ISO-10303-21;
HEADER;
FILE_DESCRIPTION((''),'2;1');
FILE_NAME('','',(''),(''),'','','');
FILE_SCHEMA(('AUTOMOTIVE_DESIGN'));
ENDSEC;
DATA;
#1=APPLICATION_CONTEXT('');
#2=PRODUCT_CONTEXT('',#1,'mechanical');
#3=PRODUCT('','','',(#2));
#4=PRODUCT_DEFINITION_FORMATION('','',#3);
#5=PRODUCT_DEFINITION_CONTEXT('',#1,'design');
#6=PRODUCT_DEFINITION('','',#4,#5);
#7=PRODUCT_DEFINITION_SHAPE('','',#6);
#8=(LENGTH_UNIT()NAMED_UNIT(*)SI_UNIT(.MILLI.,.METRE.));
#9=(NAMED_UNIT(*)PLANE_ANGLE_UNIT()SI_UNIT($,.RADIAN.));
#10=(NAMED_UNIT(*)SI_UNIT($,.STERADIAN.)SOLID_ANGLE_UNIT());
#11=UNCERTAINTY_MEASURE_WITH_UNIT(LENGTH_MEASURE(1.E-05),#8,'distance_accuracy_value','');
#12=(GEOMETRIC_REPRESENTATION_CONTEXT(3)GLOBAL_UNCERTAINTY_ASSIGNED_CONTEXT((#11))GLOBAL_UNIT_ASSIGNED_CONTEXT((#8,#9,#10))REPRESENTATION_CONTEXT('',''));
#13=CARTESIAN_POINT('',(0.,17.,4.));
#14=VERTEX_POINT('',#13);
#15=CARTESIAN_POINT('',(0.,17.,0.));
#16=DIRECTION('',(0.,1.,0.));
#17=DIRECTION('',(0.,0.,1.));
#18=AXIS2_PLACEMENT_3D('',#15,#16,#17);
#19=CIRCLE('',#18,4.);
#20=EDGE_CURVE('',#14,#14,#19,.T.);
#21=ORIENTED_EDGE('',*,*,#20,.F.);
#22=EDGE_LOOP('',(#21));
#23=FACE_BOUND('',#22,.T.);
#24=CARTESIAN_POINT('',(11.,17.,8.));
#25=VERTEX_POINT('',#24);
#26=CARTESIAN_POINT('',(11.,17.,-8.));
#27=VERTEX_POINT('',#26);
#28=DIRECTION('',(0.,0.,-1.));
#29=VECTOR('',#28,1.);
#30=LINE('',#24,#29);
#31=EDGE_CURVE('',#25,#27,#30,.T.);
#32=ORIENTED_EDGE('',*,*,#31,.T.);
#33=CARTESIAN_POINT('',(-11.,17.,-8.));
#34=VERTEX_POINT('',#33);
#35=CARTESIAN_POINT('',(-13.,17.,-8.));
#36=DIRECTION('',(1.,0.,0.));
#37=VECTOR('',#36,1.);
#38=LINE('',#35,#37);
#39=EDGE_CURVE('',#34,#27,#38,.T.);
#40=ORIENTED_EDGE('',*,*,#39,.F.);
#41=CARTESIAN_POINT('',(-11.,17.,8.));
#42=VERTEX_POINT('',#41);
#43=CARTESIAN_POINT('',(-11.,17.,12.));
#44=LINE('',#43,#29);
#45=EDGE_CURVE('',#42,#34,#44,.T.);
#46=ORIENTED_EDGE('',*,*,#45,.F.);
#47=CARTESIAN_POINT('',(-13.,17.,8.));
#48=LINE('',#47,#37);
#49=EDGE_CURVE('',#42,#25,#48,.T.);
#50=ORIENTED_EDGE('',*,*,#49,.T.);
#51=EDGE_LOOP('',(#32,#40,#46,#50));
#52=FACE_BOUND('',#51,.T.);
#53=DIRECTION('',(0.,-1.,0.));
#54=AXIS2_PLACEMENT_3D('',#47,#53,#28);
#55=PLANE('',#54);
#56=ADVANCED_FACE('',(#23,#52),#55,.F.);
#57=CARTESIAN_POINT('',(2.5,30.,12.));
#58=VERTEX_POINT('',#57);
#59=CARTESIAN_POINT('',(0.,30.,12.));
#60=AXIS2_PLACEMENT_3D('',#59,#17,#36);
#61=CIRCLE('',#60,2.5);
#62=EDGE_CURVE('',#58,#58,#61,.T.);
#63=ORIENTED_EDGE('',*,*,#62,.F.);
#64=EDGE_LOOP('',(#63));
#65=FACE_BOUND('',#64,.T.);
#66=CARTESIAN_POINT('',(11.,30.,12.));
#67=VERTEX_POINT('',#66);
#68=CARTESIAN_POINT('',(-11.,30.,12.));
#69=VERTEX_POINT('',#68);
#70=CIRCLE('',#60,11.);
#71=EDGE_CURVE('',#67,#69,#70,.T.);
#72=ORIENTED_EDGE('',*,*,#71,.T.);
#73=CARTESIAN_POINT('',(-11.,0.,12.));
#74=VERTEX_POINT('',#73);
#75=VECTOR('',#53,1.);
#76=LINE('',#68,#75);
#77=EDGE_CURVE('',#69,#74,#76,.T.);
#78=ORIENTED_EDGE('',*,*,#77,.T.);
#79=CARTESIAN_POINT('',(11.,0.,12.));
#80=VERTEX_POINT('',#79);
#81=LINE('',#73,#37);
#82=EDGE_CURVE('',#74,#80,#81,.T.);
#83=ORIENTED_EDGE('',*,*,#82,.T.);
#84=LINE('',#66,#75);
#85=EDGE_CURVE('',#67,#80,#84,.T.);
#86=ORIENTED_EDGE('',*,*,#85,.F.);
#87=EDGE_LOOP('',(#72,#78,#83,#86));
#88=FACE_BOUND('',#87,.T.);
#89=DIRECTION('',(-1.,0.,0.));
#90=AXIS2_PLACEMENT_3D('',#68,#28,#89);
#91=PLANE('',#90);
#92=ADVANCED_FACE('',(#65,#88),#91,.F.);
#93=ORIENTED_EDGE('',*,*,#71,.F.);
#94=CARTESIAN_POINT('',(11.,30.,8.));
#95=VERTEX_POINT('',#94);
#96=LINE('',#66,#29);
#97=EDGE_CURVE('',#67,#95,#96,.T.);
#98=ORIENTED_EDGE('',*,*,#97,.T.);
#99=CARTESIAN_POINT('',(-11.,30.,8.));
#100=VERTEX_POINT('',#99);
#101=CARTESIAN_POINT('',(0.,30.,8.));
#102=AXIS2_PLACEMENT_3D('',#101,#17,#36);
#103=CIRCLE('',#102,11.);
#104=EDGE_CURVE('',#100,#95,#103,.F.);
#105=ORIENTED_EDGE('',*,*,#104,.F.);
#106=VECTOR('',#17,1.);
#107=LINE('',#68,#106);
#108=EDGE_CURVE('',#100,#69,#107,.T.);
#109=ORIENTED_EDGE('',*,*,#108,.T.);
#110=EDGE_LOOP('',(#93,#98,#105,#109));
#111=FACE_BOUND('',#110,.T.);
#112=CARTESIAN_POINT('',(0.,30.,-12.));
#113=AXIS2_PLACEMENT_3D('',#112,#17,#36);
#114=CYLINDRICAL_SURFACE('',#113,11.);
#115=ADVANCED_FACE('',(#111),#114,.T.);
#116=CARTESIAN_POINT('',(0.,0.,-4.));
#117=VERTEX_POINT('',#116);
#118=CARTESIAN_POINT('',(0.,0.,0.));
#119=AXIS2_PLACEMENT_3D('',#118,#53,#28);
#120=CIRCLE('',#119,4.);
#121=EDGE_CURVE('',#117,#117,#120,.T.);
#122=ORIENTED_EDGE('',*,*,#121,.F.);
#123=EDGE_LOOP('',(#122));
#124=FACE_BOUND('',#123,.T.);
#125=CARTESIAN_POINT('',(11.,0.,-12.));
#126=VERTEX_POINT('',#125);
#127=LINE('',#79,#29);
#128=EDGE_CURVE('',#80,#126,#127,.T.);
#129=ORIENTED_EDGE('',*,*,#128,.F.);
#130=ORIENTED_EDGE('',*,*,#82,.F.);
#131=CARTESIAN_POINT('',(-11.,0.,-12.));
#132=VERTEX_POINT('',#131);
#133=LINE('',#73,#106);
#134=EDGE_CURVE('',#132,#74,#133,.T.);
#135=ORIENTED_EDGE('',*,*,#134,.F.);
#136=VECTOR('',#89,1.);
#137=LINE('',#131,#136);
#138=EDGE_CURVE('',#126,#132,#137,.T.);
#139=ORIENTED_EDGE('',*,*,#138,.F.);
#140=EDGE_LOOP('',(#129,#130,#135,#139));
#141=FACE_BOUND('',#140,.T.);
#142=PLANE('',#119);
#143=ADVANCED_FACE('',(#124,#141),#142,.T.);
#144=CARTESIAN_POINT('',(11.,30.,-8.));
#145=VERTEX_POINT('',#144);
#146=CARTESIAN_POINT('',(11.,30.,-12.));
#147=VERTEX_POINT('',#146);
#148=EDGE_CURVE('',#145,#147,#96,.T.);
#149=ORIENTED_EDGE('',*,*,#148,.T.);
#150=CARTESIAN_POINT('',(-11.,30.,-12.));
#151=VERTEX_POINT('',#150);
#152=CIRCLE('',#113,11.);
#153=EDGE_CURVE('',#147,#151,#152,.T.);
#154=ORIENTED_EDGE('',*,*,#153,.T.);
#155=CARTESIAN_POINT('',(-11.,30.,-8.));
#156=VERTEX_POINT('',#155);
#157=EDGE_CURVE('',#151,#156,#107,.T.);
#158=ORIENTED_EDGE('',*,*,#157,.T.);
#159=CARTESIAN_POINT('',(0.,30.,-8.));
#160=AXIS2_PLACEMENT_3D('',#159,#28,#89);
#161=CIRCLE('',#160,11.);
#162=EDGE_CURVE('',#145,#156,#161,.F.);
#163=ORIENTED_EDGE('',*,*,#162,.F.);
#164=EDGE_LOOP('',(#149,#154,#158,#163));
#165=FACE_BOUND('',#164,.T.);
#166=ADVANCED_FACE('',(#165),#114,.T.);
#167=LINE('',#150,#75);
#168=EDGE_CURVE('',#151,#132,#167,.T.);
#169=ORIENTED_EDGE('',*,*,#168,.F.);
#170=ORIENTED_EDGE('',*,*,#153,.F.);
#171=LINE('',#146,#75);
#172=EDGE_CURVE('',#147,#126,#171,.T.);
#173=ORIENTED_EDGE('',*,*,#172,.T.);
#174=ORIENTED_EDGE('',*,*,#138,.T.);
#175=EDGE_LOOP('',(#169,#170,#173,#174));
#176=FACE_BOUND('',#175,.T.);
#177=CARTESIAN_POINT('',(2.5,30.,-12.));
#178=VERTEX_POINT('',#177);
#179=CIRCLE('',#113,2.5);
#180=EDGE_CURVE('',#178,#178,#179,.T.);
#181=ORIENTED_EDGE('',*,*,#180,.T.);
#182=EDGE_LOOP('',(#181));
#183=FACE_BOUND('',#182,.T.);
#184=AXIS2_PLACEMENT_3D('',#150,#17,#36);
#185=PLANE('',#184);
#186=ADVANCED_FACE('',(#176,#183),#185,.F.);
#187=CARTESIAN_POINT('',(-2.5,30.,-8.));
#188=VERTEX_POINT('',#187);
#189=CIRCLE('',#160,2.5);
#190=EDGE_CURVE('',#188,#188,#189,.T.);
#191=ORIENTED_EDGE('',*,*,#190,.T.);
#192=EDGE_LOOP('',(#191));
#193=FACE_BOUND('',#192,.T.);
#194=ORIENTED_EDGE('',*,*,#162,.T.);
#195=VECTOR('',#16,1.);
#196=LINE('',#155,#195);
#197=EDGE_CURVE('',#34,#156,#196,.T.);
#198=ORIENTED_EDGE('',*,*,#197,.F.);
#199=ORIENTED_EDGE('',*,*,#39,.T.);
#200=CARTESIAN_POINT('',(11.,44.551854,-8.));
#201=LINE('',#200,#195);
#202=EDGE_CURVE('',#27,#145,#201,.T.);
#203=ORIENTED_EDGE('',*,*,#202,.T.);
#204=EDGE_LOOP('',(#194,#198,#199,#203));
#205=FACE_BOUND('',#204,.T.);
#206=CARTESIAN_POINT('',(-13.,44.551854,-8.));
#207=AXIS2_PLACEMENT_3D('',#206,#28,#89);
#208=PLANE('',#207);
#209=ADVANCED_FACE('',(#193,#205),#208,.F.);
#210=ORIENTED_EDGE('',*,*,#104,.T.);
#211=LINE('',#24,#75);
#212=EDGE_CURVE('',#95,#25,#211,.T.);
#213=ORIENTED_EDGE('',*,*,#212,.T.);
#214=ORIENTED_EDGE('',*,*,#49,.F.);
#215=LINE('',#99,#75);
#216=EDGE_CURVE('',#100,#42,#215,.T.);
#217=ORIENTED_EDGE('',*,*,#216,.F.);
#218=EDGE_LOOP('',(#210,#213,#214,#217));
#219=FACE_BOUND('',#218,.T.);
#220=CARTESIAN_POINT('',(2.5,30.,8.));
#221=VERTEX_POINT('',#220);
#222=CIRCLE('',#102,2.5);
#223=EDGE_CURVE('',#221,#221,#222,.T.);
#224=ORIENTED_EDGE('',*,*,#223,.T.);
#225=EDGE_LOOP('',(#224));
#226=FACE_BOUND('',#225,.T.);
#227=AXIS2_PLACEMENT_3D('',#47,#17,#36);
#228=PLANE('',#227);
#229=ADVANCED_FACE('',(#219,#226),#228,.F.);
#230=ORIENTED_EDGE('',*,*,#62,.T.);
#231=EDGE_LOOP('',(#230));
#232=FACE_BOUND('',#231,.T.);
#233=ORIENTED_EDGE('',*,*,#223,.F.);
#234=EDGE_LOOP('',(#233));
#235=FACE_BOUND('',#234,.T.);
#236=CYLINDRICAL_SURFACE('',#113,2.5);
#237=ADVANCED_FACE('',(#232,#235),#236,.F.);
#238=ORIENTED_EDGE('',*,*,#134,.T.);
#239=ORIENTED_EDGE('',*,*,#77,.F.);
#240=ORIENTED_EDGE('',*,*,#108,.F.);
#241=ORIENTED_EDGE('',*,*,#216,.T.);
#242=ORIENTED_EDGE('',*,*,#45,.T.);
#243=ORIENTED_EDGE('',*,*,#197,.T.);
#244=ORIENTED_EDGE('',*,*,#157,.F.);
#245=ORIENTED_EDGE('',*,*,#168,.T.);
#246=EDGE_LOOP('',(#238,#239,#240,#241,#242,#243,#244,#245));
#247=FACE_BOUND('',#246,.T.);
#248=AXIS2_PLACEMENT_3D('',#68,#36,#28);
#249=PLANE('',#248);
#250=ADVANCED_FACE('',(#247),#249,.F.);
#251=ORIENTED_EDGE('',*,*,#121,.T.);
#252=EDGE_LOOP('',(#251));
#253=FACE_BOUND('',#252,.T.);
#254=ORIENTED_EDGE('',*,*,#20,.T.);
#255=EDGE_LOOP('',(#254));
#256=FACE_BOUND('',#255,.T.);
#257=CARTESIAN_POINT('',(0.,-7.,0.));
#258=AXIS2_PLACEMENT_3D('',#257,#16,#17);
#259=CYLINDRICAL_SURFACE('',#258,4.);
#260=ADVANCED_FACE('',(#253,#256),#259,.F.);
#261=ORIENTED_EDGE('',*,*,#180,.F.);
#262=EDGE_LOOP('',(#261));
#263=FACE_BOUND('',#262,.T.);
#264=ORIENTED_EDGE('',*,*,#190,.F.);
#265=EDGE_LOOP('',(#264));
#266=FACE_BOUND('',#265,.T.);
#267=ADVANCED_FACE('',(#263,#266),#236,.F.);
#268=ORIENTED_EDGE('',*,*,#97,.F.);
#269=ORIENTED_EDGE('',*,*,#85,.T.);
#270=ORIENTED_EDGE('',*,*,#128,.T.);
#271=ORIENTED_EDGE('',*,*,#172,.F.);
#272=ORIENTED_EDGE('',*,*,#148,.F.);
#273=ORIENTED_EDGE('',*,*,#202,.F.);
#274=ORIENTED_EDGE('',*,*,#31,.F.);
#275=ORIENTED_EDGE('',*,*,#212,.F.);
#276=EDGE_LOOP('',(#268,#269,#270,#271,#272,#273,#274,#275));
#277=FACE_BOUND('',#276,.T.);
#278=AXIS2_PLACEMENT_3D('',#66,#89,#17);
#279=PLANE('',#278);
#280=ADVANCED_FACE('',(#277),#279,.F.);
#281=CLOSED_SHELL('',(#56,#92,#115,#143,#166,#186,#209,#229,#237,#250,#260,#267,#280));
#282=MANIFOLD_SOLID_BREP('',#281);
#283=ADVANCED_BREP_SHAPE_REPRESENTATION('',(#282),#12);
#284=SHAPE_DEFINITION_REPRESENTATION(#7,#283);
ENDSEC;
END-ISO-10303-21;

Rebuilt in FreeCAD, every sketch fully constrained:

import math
import FreeCAD as App
import Part
import Sketcher

V = App.Vector
Q = App.Units.Quantity


def add_polygon(sketch, points):
    """Adds a closed chain of lines whose ends are joined by coincident constraints."""
    first, n = sketch.GeometryCount, len(points)
    for a, b in zip(points, points[1:] + points[:1]):
        sketch.addGeometry(Part.LineSegment(App.Vector(*a, 0), App.Vector(*b, 0)), False)
    for i in range(n):
        sketch.addConstraint(Sketcher.Constraint("Coincident", first + i, 2, first + (i + 1) % n, 1))

doc = App.newDocument("Part")
params = doc.addObject("Spreadsheet::Sheet", "Params")
for row, (alias, value) in enumerate([
    ("sketch1_width", "22 mm"),
    ("sketch1_height", "24 mm"),
    ("pad1_length", "30 mm"),
    ("sketch2_radius", "11 mm"),
    ("pad2_length", "24 mm"),
    ("sketch3_height", "16 mm"),
    ("pocket1_length", "24 mm"),
    ("sketch4_diameter", "8 mm"),
    ("pocket2_length", "24 mm"),
    ("sketch5_diameter", "5 mm"),
], start=1):
    params.set(f"A{row}", alias)
    params.set(f"B{row}", "=" + value)
    params.setAlias(f"B{row}", alias)

body = doc.addObject("PartDesign::Body", "Body")

# Sketch on XZ plane
sketch1 = doc.addObject("Sketcher::SketchObject", "Sketch")
body.addObject(sketch1)
sketch1.AttachmentSupport = (doc.XZ_Plane, [""])
sketch1.MapMode = "FlatFace"
add_polygon(sketch1, [(-11, -12), (-11, 12), (11, 12), (11, -12)])  # lines 0-3
sketch1.addConstraint([
    Sketcher.Constraint("Vertical", 0),
    Sketcher.Constraint("Horizontal", 1),
    Sketcher.Constraint("Vertical", 2),
    Sketcher.Constraint("Horizontal", 3),
    Sketcher.Constraint("Symmetric", 0, 2, 2, 2, -1, 1),
    Sketcher.Constraint("DistanceX", 1, 1, 1, 2, Q("22 mm")),
    Sketcher.Constraint("DistanceY", 0, 1, 0, 2, Q("24 mm")),
])
sketch1.setExpression("Constraints[9]", "Params.sketch1_width")
sketch1.setExpression("Constraints[10]", "Params.sketch1_height")
pad1 = doc.addObject("PartDesign::Pad", "Pad")
body.addObject(pad1)
pad1.Profile = sketch1
pad1.setExpression("Length", "Params.pad1_length")
pad1.Reversed = True

# Sketch on XY plane
sketch2 = doc.addObject("Sketcher::SketchObject", "Sketch001")
body.addObject(sketch2)
sketch2.AttachmentSupport = (doc.XY_Plane, [""])
sketch2.MapMode = "FlatFace"
sketch2.AttachmentOffset = App.Placement(V(0, 0, 12), App.Rotation())
sketch2.addGeometry([
    Part.LineSegment(V(-11, 30, 0), V(11, 30, 0)),
    Part.ArcOfCircle(Part.Circle(V(0, 30, 0), V(0, 0, 1), 11), math.radians(0), math.radians(180)),
], False)
sketch2.addConstraint([
    Sketcher.Constraint("Coincident", 0, 1, 1, 2),
    Sketcher.Constraint("Coincident", 1, 1, 0, 2),
    Sketcher.Constraint("Horizontal", 0),
    Sketcher.Constraint("PointOnObject", 1, 3, -2),
    Sketcher.Constraint("Horizontal", 1, 3, 0, 1),
    Sketcher.Constraint("Radius", 1, Q("11 mm")),
    Sketcher.Constraint("DistanceY", -1, 1, 1, 3, Q("30 mm")),
])
sketch2.setExpression("Constraints[5]", "Params.sketch2_radius")
pad2 = doc.addObject("PartDesign::Pad", "Pad001")
body.addObject(pad2)
pad2.Profile = sketch2
pad2.setExpression("Length", "Params.pad2_length")
pad2.Reversed = True

# Sketch on YZ plane
sketch3 = doc.addObject("Sketcher::SketchObject", "Sketch002")
body.addObject(sketch3)
sketch3.AttachmentSupport = (doc.YZ_Plane, [""])
sketch3.MapMode = "FlatFace"
sketch3.AttachmentOffset = App.Placement(V(0, 0, 11), App.Rotation())
add_polygon(sketch3, [(45, 8), (17, 8), (17, -8), (45, -8)])  # lines 0-3
sketch3.addConstraint([
    Sketcher.Constraint("Horizontal", 0),
    Sketcher.Constraint("Vertical", 1),
    Sketcher.Constraint("Horizontal", 2),
    Sketcher.Constraint("Vertical", 3),
    Sketcher.Constraint("DistanceY", 1, 2, 1, 1, Q("16 mm")),
    Sketcher.Constraint("DistanceX", -1, 1, 0, 2, Q("17 mm")),
    Sketcher.Constraint("DistanceY", -1, 1, 0, 2, Q("8 mm")),
    Sketcher.Constraint("DistanceX", 0, 2, 0, 1, Q("27.551854 mm")),
])
sketch3.setExpression("Constraints[8]", "Params.sketch3_height")
pocket1 = doc.addObject("PartDesign::Pocket", "Pocket")
body.addObject(pocket1)
pocket1.Profile = sketch3
pocket1.setExpression("Length", "Params.pocket1_length")

# Sketch on XZ plane
sketch4 = doc.addObject("Sketcher::SketchObject", "Sketch003")
body.addObject(sketch4)
sketch4.AttachmentSupport = (doc.XZ_Plane, [""])
sketch4.MapMode = "FlatFace"
sketch4.AttachmentOffset = App.Placement(V(0, 0, -17), App.Rotation())
sketch4.addGeometry(Part.Circle(V(0, 0, 0), V(0, 0, 1), 4), False)
sketch4.addConstraint([
    Sketcher.Constraint("Coincident", 0, 3, -1, 1),
    Sketcher.Constraint("Diameter", 0, Q("8 mm")),
])
sketch4.setExpression("Constraints[1]", "Params.sketch4_diameter")
pocket2 = doc.addObject("PartDesign::Pocket", "Pocket001")
body.addObject(pocket2)
pocket2.Profile = sketch4
pocket2.setExpression("Length", "Params.pocket2_length")
pocket2.Reversed = True

# Sketch on XY plane
sketch5 = doc.addObject("Sketcher::SketchObject", "Sketch004")
body.addObject(sketch5)
sketch5.AttachmentSupport = (doc.XY_Plane, [""])
sketch5.MapMode = "FlatFace"
sketch5.AttachmentOffset = App.Placement(V(0, 0, 12), App.Rotation())
sketch5.addGeometry(Part.Circle(V(0, 30, 0), V(0, 0, 1), 2.5), False)
sketch5.addConstraint([
    Sketcher.Constraint("PointOnObject", 0, 3, -2),
    Sketcher.Constraint("Diameter", 0, Q("5 mm")),
    Sketcher.Constraint("DistanceY", -1, 1, 0, 3, Q("30 mm")),
])
sketch5.setExpression("Constraints[1]", "Params.sketch5_diameter")
pocket3 = doc.addObject("PartDesign::Pocket", "Pocket002")
body.addObject(pocket3)
pocket3.Profile = sketch5
pocket3.Type = "ThroughAll"

doc.recompute()
